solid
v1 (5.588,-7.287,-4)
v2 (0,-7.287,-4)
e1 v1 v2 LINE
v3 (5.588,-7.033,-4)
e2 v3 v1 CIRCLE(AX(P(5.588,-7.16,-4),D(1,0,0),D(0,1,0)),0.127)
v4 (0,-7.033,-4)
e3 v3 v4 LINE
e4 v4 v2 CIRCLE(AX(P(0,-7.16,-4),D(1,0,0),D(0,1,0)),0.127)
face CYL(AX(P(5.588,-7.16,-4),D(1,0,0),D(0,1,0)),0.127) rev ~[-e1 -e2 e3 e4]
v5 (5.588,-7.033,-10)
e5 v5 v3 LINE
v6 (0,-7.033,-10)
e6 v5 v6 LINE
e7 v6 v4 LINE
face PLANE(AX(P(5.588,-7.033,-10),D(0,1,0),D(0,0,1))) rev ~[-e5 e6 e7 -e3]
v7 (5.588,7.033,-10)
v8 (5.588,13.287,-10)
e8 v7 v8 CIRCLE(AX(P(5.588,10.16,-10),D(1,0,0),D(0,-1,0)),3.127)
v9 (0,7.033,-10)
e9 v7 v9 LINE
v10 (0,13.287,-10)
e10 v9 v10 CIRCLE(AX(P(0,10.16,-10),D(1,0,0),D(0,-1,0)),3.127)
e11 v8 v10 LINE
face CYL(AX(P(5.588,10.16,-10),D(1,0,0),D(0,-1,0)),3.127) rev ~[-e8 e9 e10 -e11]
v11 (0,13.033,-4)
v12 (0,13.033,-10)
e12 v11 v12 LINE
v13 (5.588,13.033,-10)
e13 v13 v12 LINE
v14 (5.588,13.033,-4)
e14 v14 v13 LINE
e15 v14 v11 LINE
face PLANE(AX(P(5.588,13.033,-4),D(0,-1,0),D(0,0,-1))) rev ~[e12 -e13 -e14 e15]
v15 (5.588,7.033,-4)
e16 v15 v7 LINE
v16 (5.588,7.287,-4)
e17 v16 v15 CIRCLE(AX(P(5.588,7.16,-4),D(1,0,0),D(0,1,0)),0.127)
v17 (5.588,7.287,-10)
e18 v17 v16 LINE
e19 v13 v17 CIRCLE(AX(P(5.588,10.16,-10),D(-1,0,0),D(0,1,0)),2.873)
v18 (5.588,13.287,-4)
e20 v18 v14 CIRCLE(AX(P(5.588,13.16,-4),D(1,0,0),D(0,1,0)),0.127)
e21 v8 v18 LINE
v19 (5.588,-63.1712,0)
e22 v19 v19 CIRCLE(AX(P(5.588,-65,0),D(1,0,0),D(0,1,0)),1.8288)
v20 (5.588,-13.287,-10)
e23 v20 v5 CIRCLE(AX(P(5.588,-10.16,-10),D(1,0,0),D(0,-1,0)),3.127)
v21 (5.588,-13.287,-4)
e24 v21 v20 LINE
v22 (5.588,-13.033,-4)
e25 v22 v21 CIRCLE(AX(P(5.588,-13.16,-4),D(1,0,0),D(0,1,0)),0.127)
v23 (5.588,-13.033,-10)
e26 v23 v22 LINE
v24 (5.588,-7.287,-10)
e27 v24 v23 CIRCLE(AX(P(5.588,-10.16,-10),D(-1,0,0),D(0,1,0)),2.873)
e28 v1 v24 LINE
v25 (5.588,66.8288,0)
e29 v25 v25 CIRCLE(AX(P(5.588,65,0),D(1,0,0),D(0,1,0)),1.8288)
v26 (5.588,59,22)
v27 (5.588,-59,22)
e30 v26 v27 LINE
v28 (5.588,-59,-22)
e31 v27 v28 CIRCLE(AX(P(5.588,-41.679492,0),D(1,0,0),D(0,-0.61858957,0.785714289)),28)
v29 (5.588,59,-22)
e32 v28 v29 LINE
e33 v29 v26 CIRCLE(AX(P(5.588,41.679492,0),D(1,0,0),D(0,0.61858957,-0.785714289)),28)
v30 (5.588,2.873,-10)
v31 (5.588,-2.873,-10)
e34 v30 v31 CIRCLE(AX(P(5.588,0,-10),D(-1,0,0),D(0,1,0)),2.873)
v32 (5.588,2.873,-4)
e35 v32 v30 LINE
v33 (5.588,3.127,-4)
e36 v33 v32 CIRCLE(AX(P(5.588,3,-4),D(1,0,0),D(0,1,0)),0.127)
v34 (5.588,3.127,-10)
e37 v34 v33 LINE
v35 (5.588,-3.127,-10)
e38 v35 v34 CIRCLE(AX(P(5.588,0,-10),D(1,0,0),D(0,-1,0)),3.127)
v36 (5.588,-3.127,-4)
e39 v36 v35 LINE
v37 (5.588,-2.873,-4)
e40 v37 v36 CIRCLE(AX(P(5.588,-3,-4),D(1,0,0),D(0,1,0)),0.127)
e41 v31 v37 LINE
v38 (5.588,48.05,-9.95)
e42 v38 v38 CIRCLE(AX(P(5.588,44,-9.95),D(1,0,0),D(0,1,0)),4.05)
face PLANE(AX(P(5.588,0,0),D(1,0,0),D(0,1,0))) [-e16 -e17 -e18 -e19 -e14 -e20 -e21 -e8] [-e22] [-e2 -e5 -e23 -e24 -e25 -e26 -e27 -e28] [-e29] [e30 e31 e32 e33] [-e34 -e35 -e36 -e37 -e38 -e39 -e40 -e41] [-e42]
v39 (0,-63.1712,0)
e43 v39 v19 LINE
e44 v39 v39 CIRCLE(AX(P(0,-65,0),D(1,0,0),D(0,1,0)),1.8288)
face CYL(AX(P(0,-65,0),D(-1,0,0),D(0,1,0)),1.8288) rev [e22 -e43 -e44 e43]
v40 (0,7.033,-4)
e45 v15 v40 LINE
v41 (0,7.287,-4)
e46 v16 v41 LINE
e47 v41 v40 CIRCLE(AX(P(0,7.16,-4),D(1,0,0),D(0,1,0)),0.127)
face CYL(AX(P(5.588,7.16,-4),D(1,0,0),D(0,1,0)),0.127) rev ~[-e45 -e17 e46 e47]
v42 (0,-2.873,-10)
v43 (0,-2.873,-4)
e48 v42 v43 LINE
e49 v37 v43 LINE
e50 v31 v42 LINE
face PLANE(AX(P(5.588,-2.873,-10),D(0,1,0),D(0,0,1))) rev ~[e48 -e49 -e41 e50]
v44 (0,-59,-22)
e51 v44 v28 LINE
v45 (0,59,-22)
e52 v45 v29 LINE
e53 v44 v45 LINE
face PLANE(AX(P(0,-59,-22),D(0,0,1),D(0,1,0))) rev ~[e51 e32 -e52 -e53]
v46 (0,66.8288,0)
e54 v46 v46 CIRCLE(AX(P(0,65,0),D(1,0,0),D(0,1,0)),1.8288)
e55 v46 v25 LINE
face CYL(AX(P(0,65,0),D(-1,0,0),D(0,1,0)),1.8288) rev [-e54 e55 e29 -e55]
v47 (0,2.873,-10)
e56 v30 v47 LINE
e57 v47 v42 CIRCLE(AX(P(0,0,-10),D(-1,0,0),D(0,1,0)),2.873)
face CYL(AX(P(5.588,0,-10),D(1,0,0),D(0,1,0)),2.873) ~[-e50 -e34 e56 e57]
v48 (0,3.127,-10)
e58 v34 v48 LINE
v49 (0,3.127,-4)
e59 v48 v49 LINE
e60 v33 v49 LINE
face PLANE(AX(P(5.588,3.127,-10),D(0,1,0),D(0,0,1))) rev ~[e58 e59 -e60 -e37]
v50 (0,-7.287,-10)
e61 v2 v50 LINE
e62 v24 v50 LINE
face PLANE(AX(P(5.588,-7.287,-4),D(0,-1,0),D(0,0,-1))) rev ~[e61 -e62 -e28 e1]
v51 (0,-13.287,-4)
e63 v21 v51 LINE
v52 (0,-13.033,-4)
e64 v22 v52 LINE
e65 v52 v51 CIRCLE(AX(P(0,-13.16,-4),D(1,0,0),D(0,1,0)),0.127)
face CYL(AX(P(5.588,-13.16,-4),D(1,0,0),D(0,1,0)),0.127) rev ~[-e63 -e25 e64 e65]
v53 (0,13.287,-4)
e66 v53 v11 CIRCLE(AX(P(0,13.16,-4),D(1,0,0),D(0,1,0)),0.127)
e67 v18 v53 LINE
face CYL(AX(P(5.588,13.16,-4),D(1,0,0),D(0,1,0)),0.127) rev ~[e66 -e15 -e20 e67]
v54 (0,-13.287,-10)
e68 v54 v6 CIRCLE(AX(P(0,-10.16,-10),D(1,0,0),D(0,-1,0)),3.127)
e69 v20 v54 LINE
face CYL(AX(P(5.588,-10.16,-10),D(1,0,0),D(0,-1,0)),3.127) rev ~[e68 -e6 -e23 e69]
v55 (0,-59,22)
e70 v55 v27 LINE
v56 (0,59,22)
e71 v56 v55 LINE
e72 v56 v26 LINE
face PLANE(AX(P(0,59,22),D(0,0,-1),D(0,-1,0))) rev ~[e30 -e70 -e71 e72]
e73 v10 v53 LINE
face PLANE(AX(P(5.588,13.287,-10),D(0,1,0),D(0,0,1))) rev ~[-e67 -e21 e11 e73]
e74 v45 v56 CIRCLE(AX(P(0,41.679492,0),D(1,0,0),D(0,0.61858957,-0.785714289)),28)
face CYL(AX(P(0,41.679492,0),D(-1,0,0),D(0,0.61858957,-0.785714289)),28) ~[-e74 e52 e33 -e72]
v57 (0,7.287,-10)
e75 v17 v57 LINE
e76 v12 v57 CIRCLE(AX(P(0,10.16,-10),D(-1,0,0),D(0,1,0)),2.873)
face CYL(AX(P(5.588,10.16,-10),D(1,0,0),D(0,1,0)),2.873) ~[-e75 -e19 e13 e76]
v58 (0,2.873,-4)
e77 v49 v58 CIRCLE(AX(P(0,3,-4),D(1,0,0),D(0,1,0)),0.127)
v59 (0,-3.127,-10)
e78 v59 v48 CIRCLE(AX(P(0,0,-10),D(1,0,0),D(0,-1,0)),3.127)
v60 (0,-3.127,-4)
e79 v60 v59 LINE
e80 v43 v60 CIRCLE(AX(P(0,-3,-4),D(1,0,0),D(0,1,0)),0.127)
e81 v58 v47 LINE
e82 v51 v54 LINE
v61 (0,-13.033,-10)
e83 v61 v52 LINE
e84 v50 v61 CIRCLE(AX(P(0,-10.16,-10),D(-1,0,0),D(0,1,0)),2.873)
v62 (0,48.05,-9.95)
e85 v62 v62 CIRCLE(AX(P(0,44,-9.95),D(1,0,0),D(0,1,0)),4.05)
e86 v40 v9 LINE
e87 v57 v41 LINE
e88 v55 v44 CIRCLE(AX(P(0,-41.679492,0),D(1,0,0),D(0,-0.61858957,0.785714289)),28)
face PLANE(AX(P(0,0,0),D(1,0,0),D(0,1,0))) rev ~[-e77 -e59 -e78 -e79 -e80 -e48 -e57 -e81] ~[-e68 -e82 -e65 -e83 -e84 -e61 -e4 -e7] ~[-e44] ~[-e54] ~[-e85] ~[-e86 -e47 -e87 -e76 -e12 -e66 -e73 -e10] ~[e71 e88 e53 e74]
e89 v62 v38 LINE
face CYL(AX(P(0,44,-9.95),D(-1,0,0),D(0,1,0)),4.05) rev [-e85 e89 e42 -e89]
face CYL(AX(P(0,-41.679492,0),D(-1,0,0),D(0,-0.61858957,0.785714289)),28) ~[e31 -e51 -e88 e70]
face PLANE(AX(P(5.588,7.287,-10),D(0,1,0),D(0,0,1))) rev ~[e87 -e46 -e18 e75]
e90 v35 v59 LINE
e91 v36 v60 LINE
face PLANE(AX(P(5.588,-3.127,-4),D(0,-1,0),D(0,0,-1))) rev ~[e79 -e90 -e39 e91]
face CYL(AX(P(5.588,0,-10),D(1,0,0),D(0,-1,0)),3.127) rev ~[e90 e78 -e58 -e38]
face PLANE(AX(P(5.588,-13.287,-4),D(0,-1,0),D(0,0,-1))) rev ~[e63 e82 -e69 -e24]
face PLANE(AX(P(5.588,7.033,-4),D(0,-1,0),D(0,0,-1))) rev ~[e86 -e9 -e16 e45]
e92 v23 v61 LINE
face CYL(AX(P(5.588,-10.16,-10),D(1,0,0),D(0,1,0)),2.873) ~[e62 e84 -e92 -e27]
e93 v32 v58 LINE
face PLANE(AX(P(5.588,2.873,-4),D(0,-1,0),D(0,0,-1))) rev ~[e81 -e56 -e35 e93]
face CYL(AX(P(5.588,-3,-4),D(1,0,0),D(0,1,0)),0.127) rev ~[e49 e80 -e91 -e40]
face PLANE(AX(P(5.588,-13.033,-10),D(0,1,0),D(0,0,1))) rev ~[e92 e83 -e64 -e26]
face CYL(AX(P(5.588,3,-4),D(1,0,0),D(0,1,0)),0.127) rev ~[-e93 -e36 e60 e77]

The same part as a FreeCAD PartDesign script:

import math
import FreeCAD as App
import Part
import Sketcher
from FreeCAD import Vector
Q = App.Units.Quantity

doc = App.newDocument("Part")
body = doc.addObject("PartDesign::Body", "Body")

# Sketch on YZ plane
sketch1 = body.newObject("Sketcher::SketchObject", "Sketch")
sketch1.AttachmentSupport = (doc.getObject("YZ_Plane"), [""])
sketch1.MapMode = "FlatFace"
sketch1.addGeometry([
    Part.ArcOfCircle(Part.Circle(Vector(41.7, 0, 0), Vector(0, 0, 1), 28), math.radians(-52), math.radians(52)),  # 0
    Part.LineSegment(Vector(59, 22, 0), Vector(-59, 22, 0)),  # 1
    Part.ArcOfCircle(Part.Circle(Vector(-41.7, 0, 0), Vector(0, 0, 1), 28), math.radians(128), math.radians(232)),  # 2
    Part.LineSegment(Vector(-59, -22, 0), Vector(59, -22, 0)),  # 3
    Part.Circle(Vector(44, -9.9, 0), Vector(0, 0, 1), 4),  # 4
    Part.Circle(Vector(-65, 0, 0), Vector(0, 0, 1), 1.8),  # 5
    Part.Circle(Vector(65, 0, 0), Vector(0, 0, 1), 1.8),  # 6
], False)
sketch1.addConstraint([
    Sketcher.Constraint("Coincident", 0, 2, 1, 1),
    Sketcher.Constraint("Coincident", 1, 2, 2, 1),
    Sketcher.Constraint("Coincident", 2, 2, 3, 1),
    Sketcher.Constraint("Coincident", 3, 2, 0, 1),
    Sketcher.Constraint("Horizontal", 1),
    Sketcher.Constraint("Horizontal", 3),
    Sketcher.Constraint("Equal", 0, 2),
    Sketcher.Constraint("Equal", 5, 6),
    Sketcher.Constraint("Symmetric", 0, 3, 2, 3, -1, 1),
    Sketcher.Constraint("Symmetric", 5, 3, 6, 3, -1, 1),
    Sketcher.Constraint("Symmetric", 1, 2, 2, 2, -1),
    Sketcher.Constraint("PointOnObject", 5, 3, -1),
    Sketcher.Constraint("Radius", 0, Q("28 mm")),
    Sketcher.Constraint("Diameter", 4, Q("8.1 mm")),
    Sketcher.Constraint("DistanceX", 1, 2, 1, 1, Q("118 mm")),
    Sketcher.Constraint("DistanceX", -1, 1, 4, 3, Q("44 mm")),
    Sketcher.Constraint("DistanceX", 5, 3, -1, 1, Q("65 mm")),
    Sketcher.Constraint("DistanceY", -1, 1, 0, 2, Q("22 mm")),
    Sketcher.Constraint("Diameter", 5, Q("3.6576 mm")),
    Sketcher.Constraint("DistanceY", 4, 3, -1, 1, Q("9.95 mm")),
])
pad1 = body.newObject("PartDesign::Pad", "Pad")
pad1.Profile = sketch1
pad1.Length = 5.588

# Sketch on YZ plane
sketch2 = body.newObject("Sketcher::SketchObject", "Sketch001")
sketch2.AttachmentSupport = (doc.getObject("YZ_Plane"), [""])
sketch2.MapMode = "FlatFace"
sketch2.AttachmentOffset = App.Placement(Vector(0, 0, 5.588), App.Rotation())
sketch2.addGeometry([
    Part.ArcOfCircle(Part.Circle(Vector(7.16, -4, 0), Vector(0, 0, 1), 0.13), math.radians(0), math.radians(180)),  # 0
    Part.LineSegment(Vector(7.03, -4, 0), Vector(7.03, -10, 0)),  # 1
    Part.ArcOfCircle(Part.Circle(Vector(10.16, -10, 0), Vector(0, 0, 1), 3.13), math.radians(180), math.radians(360)),  # 2
    Part.LineSegment(Vector(13.29, -10, 0), Vector(13.29, -4, 0)),  # 3
    Part.ArcOfCircle(Part.Circle(Vector(13.16, -4, 0), Vector(0, 0, 1), 0.13), math.radians(0), math.radians(180)),  # 4
    Part.LineSegment(Vector(13.03, -4, 0), Vector(13.03, -10, 0)),  # 5
    Part.ArcOfCircle(Part.Circle(Vector(10.16, -10, 0), Vector(0, 0, 1), 2.87), math.radians(180), math.radians(360)),  # 6
    Part.LineSegment(Vector(7.29, -10, 0), Vector(7.29, -4, 0)),  # 7
    Part.ArcOfCircle(Part.Circle(Vector(0, -10, 0), Vector(0, 0, 1), 2.87), math.radians(180), math.radians(360)),  # 8
    Part.LineSegment(Vector(-2.87, -10, 0), Vector(-2.87, -4, 0)),  # 9
    Part.ArcOfCircle(Part.Circle(Vector(-3, -4, 0), Vector(0, 0, 1), 0.13), math.radians(0), math.radians(180)),  # 10
    Part.LineSegment(Vector(-3.13, -4, 0), Vector(-3.13, -10, 0)),  # 11
    Part.ArcOfCircle(Part.Circle(Vector(0, -10, 0), Vector(0, 0, 1), 3.13), math.radians(180), math.radians(360)),  # 12
    Part.LineSegment(Vector(3.13, -10, 0), Vector(3.13, -4, 0)),  # 13
    Part.ArcOfCircle(Part.Circle(Vector(3, -4, 0), Vector(0, 0, 1), 0.13), math.radians(0), math.radians(180)),  # 14
    Part.LineSegment(Vector(2.87, -4, 0), Vector(2.87, -10, 0)),  # 15
    Part.ArcOfCircle(Part.Circle(Vector(-10.16, -10, 0), Vector(0, 0, 1), 2.87), math.radians(180), math.radians(360)),  # 16
    Part.LineSegment(Vector(-13.03, -10, 0), Vector(-13.03, -4, 0)),  # 17
    Part.ArcOfCircle(Part.Circle(Vector(-13.16, -4, 0), Vector(0, 0, 1), 0.13), math.radians(0), math.radians(180)),  # 18
    Part.LineSegment(Vector(-13.29, -4, 0), Vector(-13.29, -10, 0)),  # 19
    Part.ArcOfCircle(Part.Circle(Vector(-10.16, -10, 0), Vector(0, 0, 1), 3.13), math.radians(180), math.radians(360)),  # 20
    Part.LineSegment(Vector(-7.03, -10, 0), Vector(-7.03, -4, 0)),  # 21
    Part.ArcOfCircle(Part.Circle(Vector(-7.16, -4, 0), Vector(0, 0, 1), 0.13), math.radians(0), math.radians(180)),  # 22
    Part.LineSegment(Vector(-7.29, -4, 0), Vector(-7.29, -10, 0)),  # 23
], False)
sketch2.addConstraint([
    Sketcher.Constraint("Tangent", 0, 2, 1, 1),
    Sketcher.Constraint("Tangent", 1, 2, 2, 1),
    Sketcher.Constraint("Tangent", 2, 2, 3, 1),
    Sketcher.Constraint("Tangent", 3, 2, 4, 1),
    Sketcher.Constraint("Tangent", 4, 2, 5, 1),
    Sketcher.Constraint("Tangent", 5, 2, 6, 2),
    Sketcher.Constraint("Tangent", 6, 1, 7, 1),
    Sketcher.Constraint("Tangent", 7, 2, 0, 1),
    Sketcher.Constraint("Tangent", 8, 1, 9, 1),
    Sketcher.Constraint("Tangent", 9, 2, 10, 1),
    Sketcher.Constraint("Tangent", 10, 2, 11, 1),
    Sketcher.Constraint("Tangent", 11, 2, 12, 1),
    Sketcher.Constraint("Tangent", 12, 2, 13, 1),
    Sketcher.Constraint("Tangent", 13, 2, 14, 1),
    Sketcher.Constraint("Tangent", 14, 2, 15, 1),
    Sketcher.Constraint("Tangent", 15, 2, 8, 2),
    Sketcher.Constraint("Tangent", 16, 1, 17, 1),
    Sketcher.Constraint("Tangent", 17, 2, 18, 1),
    Sketcher.Constraint("Tangent", 18, 2, 19, 1),
    Sketcher.Constraint("Tangent", 19, 2, 20, 1),
    Sketcher.Constraint("Tangent", 20, 2, 21, 1),
    Sketcher.Constraint("Tangent", 21, 2, 22, 1),
    Sketcher.Constraint("Tangent", 22, 2, 23, 1),
    Sketcher.Constraint("Tangent", 23, 2, 16, 2),
    Sketcher.Constraint("Vertical", 1),
    Sketcher.Constraint("Vertical", 3),
    Sketcher.Constraint("Vertical", 5),
    Sketcher.Constraint("Vertical", 7),
    Sketcher.Constraint("Vertical", 9),
    Sketcher.Constraint("Vertical", 11),
    Sketcher.Constraint("Vertical", 13),
    Sketcher.Constraint("Vertical", 15),
    Sketcher.Constraint("Vertical", 17),
    Sketcher.Constraint("Vertical", 19),
    Sketcher.Constraint("Vertical", 21),
    Sketcher.Constraint("Vertical", 23),
    Sketcher.Constraint("Coincident", 6, 3, 2, 3),
    Sketcher.Constraint("Coincident", 12, 3, 8, 3),
    Sketcher.Constraint("Coincident", 20, 3, 16, 3),
    Sketcher.Constraint("Equal", 6, 8),
    Sketcher.Constraint("Equal", 4, 10),
    Sketcher.Constraint("Equal", 8, 16),
    Sketcher.Constraint("Equal", 14, 18),
    Sketcher.Constraint("Symmetric", 10, 3, 14, 3, -2),
    Sketcher.Constraint("Symmetric", 2, 3, 16, 3, -2),
    Sketcher.Constraint("Horizontal", 0, 3, 4, 3),
    Sketcher.Constraint("Horizontal", 6, 3, 8, 3),
    Sketcher.Constraint("Horizontal", 4, 3, 10, 3),
    Sketcher.Constraint("Horizontal", 14, 3, 18, 3),
    Sketcher.Constraint("Horizontal", 18, 3, 22, 3),
    Sketcher.Constraint("DistanceY", 1, 2, 1, 1, Q("6 mm")),
    Sketcher.Constraint("DistanceY", 0, 3, -1, 1, Q("4 mm")),
    Sketcher.Constraint("DistanceX", 10, 3, -1, 1, Q("3 mm")),
    Sketcher.Constraint("Radius", 0, Q("0.127 mm")),
    Sketcher.Constraint("DistanceX", -1, 1, 0, 3, Q("7.16 mm")),
])
pocket1 = body.newObject("PartDesign::Pocket", "Pocket")
pocket1.Profile = sketch2
pocket1.Type = "ThroughAll"

doc.recompute()
